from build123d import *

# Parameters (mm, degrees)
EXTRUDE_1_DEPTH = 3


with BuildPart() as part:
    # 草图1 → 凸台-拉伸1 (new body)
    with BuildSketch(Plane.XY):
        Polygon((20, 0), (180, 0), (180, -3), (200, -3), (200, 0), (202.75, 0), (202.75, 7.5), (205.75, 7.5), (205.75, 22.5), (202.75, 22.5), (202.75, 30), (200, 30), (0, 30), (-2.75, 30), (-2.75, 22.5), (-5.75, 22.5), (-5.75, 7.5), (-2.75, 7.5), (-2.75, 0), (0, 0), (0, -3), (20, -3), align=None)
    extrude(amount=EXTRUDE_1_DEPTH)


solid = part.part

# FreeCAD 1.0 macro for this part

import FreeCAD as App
import Part
import Sketcher
from FreeCAD import Vector
Q = App.Units.Quantity

doc = App.newDocument("Part")
body = doc.addObject("PartDesign::Body", "Body")

# Sketch on XY plane
sketch1 = body.newObject("Sketcher::SketchObject", "Sketch")
sketch1.AttachmentSupport = (doc.getObject("XY_Plane"), [""])
sketch1.MapMode = "FlatFace"
sketch1.addGeometry([
    Part.LineSegment(Vector(20, 0, 0), Vector(180, 0, 0)),  # 0
    Part.LineSegment(Vector(180, 0, 0), Vector(180, -3, 0)),  # 1
    Part.LineSegment(Vector(180, -3, 0), Vector(200, -3, 0)),  # 2
    Part.LineSegment(Vector(200, -3, 0), Vector(200, 0, 0)),  # 3
    Part.LineSegment(Vector(200, 0, 0), Vector(202.8, 0, 0)),  # 4
    Part.LineSegment(Vector(202.8, 0, 0), Vector(202.8, 7.5, 0)),  # 5
    Part.LineSegment(Vector(202.8, 7.5, 0), Vector(205.8, 7.5, 0)),  # 6
    Part.LineSegment(Vector(205.8, 7.5, 0), Vector(205.8, 22.5, 0)),  # 7
    Part.LineSegment(Vector(205.8, 22.5, 0), Vector(202.8, 22.5, 0)),  # 8
    Part.LineSegment(Vector(202.8, 22.5, 0), Vector(202.8, 30, 0)),  # 9
    Part.LineSegment(Vector(202.8, 30, 0), Vector(-2.8, 30, 0)),  # 10
    Part.LineSegment(Vector(-2.8, 30, 0), Vector(-2.8, 22.5, 0)),  # 11
    Part.LineSegment(Vector(-2.8, 22.5, 0), Vector(-5.8, 22.5, 0)),  # 12
    Part.LineSegment(Vector(-5.8, 22.5, 0), Vector(-5.8, 7.5, 0)),  # 13
    Part.LineSegment(Vector(-5.8, 7.5, 0), Vector(-2.8, 7.5, 0)),  # 14
    Part.LineSegment(Vector(-2.8, 7.5, 0), Vector(-2.8, 0, 0)),  # 15
    Part.LineSegment(Vector(-2.8, 0, 0), Vector(0, 0, 0)),  # 16
    Part.LineSegment(Vector(0, 0, 0), Vector(0, -3, 0)),  # 17
    Part.LineSegment(Vector(0, -3, 0), Vector(20, -3, 0)),  # 18
    Part.LineSegment(Vector(20, -3, 0), Vector(20, 0, 0)),  # 19
], False)
sketch1.addConstraint([
    Sketcher.Constraint("Coincident", 0, 2, 1, 1),
    Sketcher.Constraint("Coincident", 1, 2, 2, 1),
    Sketcher.Constraint("Coincident", 2, 2, 3, 1),
    Sketcher.Constraint("Coincident", 3, 2, 4, 1),
    Sketcher.Constraint("Coincident", 4, 2, 5, 1),
    Sketcher.Constraint("Coincident", 5, 2, 6, 1),
    Sketcher.Constraint("Coincident", 6, 2, 7, 1),
    Sketcher.Constraint("Coincident", 7, 2, 8, 1),
    Sketcher.Constraint("Coincident", 8, 2, 9, 1),
    Sketcher.Constraint("Coincident", 9, 2, 10, 1),
    Sketcher.Constraint("Coincident", 10, 2, 11, 1),
    Sketcher.Constraint("Coincident", 11, 2, 12, 1),
    Sketcher.Constraint("Coincident", 12, 2, 13, 1),
    Sketcher.Constraint("Coincident", 13, 2, 14, 1),
    Sketcher.Constraint("Coincident", 14, 2, 15, 1),
    Sketcher.Constraint("Coincident", 15, 2, 16, 1),
    Sketcher.Constraint("Coincident", 16, 2, 17, 1),
    Sketcher.Constraint("Coincident", 17, 2, 18, 1),
    Sketcher.Constraint("Coincident", 18, 2, 19, 1),
    Sketcher.Constraint("Coincident", 19, 2, 0, 1),
    Sketcher.Constraint("Horizontal", 0),
    Sketcher.Constraint("Vertical", 1),
    Sketcher.Constraint("Horizontal", 2),
    Sketcher.Constraint("Vertical", 3),
    Sketcher.Constraint("Horizontal", 4),
    Sketcher.Constraint("Vertical", 5),
    Sketcher.Constraint("Horizontal", 6),
    Sketcher.Constraint("Vertical", 7),
    Sketcher.Constraint("Horizontal", 8),
    Sketcher.Constraint("Vertical", 9),
    Sketcher.Constraint("Horizontal", 10),
    Sketcher.Constraint("Vertical", 11),
    Sketcher.Constraint("Horizontal", 12),
    Sketcher.Constraint("Vertical", 13),
    Sketcher.Constraint("Horizontal", 14),
    Sketcher.Constraint("Vertical", 15),
    Sketcher.Constraint("Horizontal", 16),
    Sketcher.Constraint("Vertical", 17),
    Sketcher.Constraint("Horizontal", 18),
    Sketcher.Constraint("Vertical", 19),
    Sketcher.Constraint("Coincident", 16, 2, -1, 1),
    Sketcher.Constraint("PointOnObject", 0, 2, -1),
    Sketcher.Constraint("PointOnObject", 3, 2, -1),
    Sketcher.Constraint("Horizontal", 8, 2, 11, 2),
    Sketcher.Constraint("Horizontal", 6, 2, 13, 2),
    Sketcher.Constraint("Horizontal", 2, 2, 17, 2),
    Sketcher.Constraint("Vertical", 5, 2, 8, 2),
    Sketcher.Constraint("Vertical", 11, 2, 14, 2),
    Sketcher.Constraint("Equal", 8, 12),
    Sketcher.Constraint("Equal", 4, 16),
    Sketcher.Constraint("Equal", 2, 18),
    Sketcher.Constraint("Equal", 14, 1),
    Sketcher.Constraint("Equal", 5, 9),
    Sketcher.Constraint("DistanceX", 0, 1, 0, 2, Q("160 mm")),
    Sketcher.Constraint("DistanceX", 2, 1, 2, 2, Q("20 mm")),
    Sketcher.Constraint("DistanceX", 6, 1, 6, 2, Q("3 mm")),
    Sketcher.Constraint("DistanceY", 7, 1, 7, 2, Q("15 mm")),
    Sketcher.Constraint("DistanceX", 10, 2, 10, 1, Q("205.5 mm")),
    Sketcher.Constraint("DistanceY", 5, 1, 5, 2, Q("7.5 mm")),
])
pad1 = body.newObject("PartDesign::Pad", "Pad")
pad1.Profile = sketch1
pad1.Length = 3

doc.recompute()
